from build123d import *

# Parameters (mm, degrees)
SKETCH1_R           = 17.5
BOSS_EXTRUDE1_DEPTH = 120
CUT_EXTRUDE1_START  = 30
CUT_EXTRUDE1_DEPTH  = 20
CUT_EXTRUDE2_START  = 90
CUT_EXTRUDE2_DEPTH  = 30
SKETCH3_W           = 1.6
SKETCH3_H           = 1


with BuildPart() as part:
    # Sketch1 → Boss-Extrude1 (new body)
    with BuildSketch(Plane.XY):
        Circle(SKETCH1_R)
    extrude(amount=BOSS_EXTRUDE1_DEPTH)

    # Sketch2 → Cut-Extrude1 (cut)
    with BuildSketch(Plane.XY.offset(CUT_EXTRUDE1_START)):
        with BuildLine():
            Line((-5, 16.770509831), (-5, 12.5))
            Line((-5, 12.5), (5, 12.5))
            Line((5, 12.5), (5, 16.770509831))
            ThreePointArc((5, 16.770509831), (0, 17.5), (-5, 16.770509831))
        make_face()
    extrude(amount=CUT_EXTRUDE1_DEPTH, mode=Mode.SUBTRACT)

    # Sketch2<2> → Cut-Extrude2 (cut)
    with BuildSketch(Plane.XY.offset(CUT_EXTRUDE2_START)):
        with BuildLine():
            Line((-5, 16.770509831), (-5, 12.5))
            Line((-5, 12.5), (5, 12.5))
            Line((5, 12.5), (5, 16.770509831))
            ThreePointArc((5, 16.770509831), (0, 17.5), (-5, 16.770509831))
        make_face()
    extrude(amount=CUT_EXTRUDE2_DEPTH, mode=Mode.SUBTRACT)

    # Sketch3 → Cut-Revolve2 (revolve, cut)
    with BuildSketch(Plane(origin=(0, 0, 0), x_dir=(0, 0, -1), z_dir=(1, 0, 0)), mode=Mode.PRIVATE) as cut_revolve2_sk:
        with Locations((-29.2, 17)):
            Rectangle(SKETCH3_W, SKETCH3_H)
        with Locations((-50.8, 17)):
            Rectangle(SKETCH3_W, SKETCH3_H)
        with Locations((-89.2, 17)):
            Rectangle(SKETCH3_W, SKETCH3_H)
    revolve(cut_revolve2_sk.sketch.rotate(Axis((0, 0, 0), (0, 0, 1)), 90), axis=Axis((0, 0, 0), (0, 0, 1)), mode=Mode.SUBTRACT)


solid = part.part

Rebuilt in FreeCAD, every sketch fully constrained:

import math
import FreeCAD as App
import Part
import Sketcher
from FreeCAD import Vector


def add_polygon(sketch, points):
    """Adds a closed chain of lines whose ends are joined by coincident constraints."""
    first, n = sketch.GeometryCount, len(points)
    for a, b in zip(points, points[1:] + points[:1]):
        sketch.addGeometry(Part.LineSegment(App.Vector(*a, 0), App.Vector(*b, 0)), False)
    for i in range(n):
        sketch.addConstraint(Sketcher.Constraint("Coincident", first + i, 2, first + (i + 1) % n, 1))

doc = App.newDocument("Part")
body = doc.addObject("PartDesign::Body", "Body")

# Sketch on XY plane
sketch1 = body.newObject("Sketcher::SketchObject", "Sketch")
sketch1.AttachmentSupport = (doc.getObject("XY_Plane"), [""])
sketch1.MapMode = "FlatFace"
sketch1.addGeometry(Part.Circle(Vector(0, 0, 0), Vector(0, 0, 1), 18), False)
sketch1.addConstraint([
    Sketcher.Constraint("Coincident", 0, 3, -1, 1),
    Sketcher.Constraint("Diameter", 0, 35.0),
])
pad1 = body.newObject("PartDesign::Pad", "Pad")
pad1.Profile = sketch1
pad1.Length = 120

# Sketch on XY plane
sketch2 = body.newObject("Sketcher::SketchObject", "Sketch001")
sketch2.AttachmentSupport = (doc.getObject("XY_Plane"), [""])
sketch2.MapMode = "FlatFace"
sketch2.AttachmentOffset = App.Placement(Vector(0, 0, 30), App.Rotation())
sketch2.addGeometry([
    Part.LineSegment(Vector(-5, 16.8, 0), Vector(-5, 12.5, 0)),
    Part.LineSegment(Vector(-5, 12.5, 0), Vector(5, 12.5, 0)),
    Part.LineSegment(Vector(5, 12.5, 0), Vector(5, 16.8, 0)),
    Part.ArcOfCircle(Part.Circle(Vector(0, 0, 0), Vector(0, 0, 1), 17.5), math.radians(73), math.radians(107)),
], False)
sketch2.addConstraint([
    Sketcher.Constraint("Coincident", 0, 2, 1, 1),
    Sketcher.Constraint("Coincident", 1, 2, 2, 1),
    Sketcher.Constraint("Coincident", 2, 2, 3, 1),
    Sketcher.Constraint("Coincident", 3, 2, 0, 1),
    Sketcher.Constraint("Vertical", 0),
    Sketcher.Constraint("Horizontal", 1),
    Sketcher.Constraint("Vertical", 2),
    Sketcher.Constraint("Coincident", 3, 3, -1, 1),
    Sketcher.Constraint("Horizontal", 2, 2, 3, 2),
    Sketcher.Constraint("Radius", 3, 17.5),
    Sketcher.Constraint("DistanceX", 1, 1, 1, 2, 10.0),
    Sketcher.Constraint("DistanceY", -1, 1, 0, 2, 12.5),
])
pocket1 = body.newObject("PartDesign::Pocket", "Pocket")
pocket1.Profile = sketch2
pocket1.Length = 20
pocket1.Reversed = True

# Sketch on XY plane
sketch3 = body.newObject("Sketcher::SketchObject", "Sketch002")
sketch3.AttachmentSupport = (doc.getObject("XY_Plane"), [""])
sketch3.MapMode = "FlatFace"
sketch3.AttachmentOffset = App.Placement(Vector(0, 0, 90), App.Rotation())
sketch3.addGeometry([
    Part.LineSegment(Vector(-5, 16.8, 0), Vector(-5, 12.5, 0)),
    Part.LineSegment(Vector(-5, 12.5, 0), Vector(5, 12.5, 0)),
    Part.LineSegment(Vector(5, 12.5, 0), Vector(5, 16.8, 0)),
    Part.ArcOfCircle(Part.Circle(Vector(0, 0, 0), Vector(0, 0, 1), 17.5), math.radians(73), math.radians(107)),
], False)
sketch3.addConstraint([
    Sketcher.Constraint("Coincident", 0, 2, 1, 1),
    Sketcher.Constraint("Coincident", 1, 2, 2, 1),
    Sketcher.Constraint("Coincident", 2, 2, 3, 1),
    Sketcher.Constraint("Coincident", 3, 2, 0, 1),
    Sketcher.Constraint("Vertical", 0),
    Sketcher.Constraint("Horizontal", 1),
    Sketcher.Constraint("Vertical", 2),
    Sketcher.Constraint("Coincident", 3, 3, -1, 1),
    Sketcher.Constraint("Horizontal", 2, 2, 3, 2),
    Sketcher.Constraint("Radius", 3, 17.5),
    Sketcher.Constraint("DistanceX", 1, 1, 1, 2, 10.0),
    Sketcher.Constraint("DistanceY", -1, 1, 0, 2, 12.5),
])
pocket2 = body.newObject("PartDesign::Pocket", "Pocket001")
pocket2.Profile = sketch3
pocket2.Length = 30
pocket2.Reversed = True

# Sketch on YZ plane
sketch4 = body.newObject("Sketcher::SketchObject", "Sketch003")
sketch4.AttachmentSupport = (doc.getObject("YZ_Plane"), [""])
sketch4.MapMode = "FlatFace"
add_polygon(sketch4, [(17.5, 30), (16.5, 30), (16.5, 28.4), (17.5, 28.4)])  # lines 0-3
add_polygon(sketch4, [(17.5, 51.6), (16.5, 51.6), (16.5, 50), (17.5, 50)])  # lines 4-7
add_polygon(sketch4, [(17.5, 90), (16.5, 90), (16.5, 88.4), (17.5, 88.4)])  # lines 8-11
sketch4.addConstraint([
    Sketcher.Constraint("Horizontal", 0),
    Sketcher.Constraint("Vertical", 1),
    Sketcher.Constraint("Horizontal", 2),
    Sketcher.Constraint("Vertical", 3),
    Sketcher.Constraint("Horizontal", 4),
    Sketcher.Constraint("Vertical", 5),
    Sketcher.Constraint("Horizontal", 6),
    Sketcher.Constraint("Vertical", 7),
    Sketcher.Constraint("Horizontal", 8),
    Sketcher.Constraint("Vertical", 9),
    Sketcher.Constraint("Horizontal", 10),
    Sketcher.Constraint("Vertical", 11),
    Sketcher.Constraint("Vertical", 1, 2, 4, 2),
    Sketcher.Constraint("Vertical", 3, 2, 6, 2),
    Sketcher.Constraint("Vertical", 5, 2, 8, 2),
    Sketcher.Constraint("Vertical", 7, 2, 10, 2),
    Sketcher.Constraint("Equal", 3, 5),
    Sketcher.Constraint("Equal", 7, 9),
    Sketcher.Constraint("DistanceX", 0, 2, 0, 1, 1.0),
    Sketcher.Constraint("DistanceY", 1, 2, 1, 1, 1.6),
    Sketcher.Constraint("DistanceY", -1, 1, 0, 2, 30.0),
    Sketcher.Constraint("DistanceY", -1, 1, 5, 2, 50.0),
    Sketcher.Constraint("DistanceY", -1, 1, 8, 2, 90.0),
    Sketcher.Constraint("DistanceX", -1, 1, 0, 2, 16.5),
])
groove = body.newObject("PartDesign::Groove", "Groove")
groove.Profile = sketch4
groove.ReferenceAxis = (sketch4, ["V_Axis"])
groove.Angle = 360

doc.recompute()
